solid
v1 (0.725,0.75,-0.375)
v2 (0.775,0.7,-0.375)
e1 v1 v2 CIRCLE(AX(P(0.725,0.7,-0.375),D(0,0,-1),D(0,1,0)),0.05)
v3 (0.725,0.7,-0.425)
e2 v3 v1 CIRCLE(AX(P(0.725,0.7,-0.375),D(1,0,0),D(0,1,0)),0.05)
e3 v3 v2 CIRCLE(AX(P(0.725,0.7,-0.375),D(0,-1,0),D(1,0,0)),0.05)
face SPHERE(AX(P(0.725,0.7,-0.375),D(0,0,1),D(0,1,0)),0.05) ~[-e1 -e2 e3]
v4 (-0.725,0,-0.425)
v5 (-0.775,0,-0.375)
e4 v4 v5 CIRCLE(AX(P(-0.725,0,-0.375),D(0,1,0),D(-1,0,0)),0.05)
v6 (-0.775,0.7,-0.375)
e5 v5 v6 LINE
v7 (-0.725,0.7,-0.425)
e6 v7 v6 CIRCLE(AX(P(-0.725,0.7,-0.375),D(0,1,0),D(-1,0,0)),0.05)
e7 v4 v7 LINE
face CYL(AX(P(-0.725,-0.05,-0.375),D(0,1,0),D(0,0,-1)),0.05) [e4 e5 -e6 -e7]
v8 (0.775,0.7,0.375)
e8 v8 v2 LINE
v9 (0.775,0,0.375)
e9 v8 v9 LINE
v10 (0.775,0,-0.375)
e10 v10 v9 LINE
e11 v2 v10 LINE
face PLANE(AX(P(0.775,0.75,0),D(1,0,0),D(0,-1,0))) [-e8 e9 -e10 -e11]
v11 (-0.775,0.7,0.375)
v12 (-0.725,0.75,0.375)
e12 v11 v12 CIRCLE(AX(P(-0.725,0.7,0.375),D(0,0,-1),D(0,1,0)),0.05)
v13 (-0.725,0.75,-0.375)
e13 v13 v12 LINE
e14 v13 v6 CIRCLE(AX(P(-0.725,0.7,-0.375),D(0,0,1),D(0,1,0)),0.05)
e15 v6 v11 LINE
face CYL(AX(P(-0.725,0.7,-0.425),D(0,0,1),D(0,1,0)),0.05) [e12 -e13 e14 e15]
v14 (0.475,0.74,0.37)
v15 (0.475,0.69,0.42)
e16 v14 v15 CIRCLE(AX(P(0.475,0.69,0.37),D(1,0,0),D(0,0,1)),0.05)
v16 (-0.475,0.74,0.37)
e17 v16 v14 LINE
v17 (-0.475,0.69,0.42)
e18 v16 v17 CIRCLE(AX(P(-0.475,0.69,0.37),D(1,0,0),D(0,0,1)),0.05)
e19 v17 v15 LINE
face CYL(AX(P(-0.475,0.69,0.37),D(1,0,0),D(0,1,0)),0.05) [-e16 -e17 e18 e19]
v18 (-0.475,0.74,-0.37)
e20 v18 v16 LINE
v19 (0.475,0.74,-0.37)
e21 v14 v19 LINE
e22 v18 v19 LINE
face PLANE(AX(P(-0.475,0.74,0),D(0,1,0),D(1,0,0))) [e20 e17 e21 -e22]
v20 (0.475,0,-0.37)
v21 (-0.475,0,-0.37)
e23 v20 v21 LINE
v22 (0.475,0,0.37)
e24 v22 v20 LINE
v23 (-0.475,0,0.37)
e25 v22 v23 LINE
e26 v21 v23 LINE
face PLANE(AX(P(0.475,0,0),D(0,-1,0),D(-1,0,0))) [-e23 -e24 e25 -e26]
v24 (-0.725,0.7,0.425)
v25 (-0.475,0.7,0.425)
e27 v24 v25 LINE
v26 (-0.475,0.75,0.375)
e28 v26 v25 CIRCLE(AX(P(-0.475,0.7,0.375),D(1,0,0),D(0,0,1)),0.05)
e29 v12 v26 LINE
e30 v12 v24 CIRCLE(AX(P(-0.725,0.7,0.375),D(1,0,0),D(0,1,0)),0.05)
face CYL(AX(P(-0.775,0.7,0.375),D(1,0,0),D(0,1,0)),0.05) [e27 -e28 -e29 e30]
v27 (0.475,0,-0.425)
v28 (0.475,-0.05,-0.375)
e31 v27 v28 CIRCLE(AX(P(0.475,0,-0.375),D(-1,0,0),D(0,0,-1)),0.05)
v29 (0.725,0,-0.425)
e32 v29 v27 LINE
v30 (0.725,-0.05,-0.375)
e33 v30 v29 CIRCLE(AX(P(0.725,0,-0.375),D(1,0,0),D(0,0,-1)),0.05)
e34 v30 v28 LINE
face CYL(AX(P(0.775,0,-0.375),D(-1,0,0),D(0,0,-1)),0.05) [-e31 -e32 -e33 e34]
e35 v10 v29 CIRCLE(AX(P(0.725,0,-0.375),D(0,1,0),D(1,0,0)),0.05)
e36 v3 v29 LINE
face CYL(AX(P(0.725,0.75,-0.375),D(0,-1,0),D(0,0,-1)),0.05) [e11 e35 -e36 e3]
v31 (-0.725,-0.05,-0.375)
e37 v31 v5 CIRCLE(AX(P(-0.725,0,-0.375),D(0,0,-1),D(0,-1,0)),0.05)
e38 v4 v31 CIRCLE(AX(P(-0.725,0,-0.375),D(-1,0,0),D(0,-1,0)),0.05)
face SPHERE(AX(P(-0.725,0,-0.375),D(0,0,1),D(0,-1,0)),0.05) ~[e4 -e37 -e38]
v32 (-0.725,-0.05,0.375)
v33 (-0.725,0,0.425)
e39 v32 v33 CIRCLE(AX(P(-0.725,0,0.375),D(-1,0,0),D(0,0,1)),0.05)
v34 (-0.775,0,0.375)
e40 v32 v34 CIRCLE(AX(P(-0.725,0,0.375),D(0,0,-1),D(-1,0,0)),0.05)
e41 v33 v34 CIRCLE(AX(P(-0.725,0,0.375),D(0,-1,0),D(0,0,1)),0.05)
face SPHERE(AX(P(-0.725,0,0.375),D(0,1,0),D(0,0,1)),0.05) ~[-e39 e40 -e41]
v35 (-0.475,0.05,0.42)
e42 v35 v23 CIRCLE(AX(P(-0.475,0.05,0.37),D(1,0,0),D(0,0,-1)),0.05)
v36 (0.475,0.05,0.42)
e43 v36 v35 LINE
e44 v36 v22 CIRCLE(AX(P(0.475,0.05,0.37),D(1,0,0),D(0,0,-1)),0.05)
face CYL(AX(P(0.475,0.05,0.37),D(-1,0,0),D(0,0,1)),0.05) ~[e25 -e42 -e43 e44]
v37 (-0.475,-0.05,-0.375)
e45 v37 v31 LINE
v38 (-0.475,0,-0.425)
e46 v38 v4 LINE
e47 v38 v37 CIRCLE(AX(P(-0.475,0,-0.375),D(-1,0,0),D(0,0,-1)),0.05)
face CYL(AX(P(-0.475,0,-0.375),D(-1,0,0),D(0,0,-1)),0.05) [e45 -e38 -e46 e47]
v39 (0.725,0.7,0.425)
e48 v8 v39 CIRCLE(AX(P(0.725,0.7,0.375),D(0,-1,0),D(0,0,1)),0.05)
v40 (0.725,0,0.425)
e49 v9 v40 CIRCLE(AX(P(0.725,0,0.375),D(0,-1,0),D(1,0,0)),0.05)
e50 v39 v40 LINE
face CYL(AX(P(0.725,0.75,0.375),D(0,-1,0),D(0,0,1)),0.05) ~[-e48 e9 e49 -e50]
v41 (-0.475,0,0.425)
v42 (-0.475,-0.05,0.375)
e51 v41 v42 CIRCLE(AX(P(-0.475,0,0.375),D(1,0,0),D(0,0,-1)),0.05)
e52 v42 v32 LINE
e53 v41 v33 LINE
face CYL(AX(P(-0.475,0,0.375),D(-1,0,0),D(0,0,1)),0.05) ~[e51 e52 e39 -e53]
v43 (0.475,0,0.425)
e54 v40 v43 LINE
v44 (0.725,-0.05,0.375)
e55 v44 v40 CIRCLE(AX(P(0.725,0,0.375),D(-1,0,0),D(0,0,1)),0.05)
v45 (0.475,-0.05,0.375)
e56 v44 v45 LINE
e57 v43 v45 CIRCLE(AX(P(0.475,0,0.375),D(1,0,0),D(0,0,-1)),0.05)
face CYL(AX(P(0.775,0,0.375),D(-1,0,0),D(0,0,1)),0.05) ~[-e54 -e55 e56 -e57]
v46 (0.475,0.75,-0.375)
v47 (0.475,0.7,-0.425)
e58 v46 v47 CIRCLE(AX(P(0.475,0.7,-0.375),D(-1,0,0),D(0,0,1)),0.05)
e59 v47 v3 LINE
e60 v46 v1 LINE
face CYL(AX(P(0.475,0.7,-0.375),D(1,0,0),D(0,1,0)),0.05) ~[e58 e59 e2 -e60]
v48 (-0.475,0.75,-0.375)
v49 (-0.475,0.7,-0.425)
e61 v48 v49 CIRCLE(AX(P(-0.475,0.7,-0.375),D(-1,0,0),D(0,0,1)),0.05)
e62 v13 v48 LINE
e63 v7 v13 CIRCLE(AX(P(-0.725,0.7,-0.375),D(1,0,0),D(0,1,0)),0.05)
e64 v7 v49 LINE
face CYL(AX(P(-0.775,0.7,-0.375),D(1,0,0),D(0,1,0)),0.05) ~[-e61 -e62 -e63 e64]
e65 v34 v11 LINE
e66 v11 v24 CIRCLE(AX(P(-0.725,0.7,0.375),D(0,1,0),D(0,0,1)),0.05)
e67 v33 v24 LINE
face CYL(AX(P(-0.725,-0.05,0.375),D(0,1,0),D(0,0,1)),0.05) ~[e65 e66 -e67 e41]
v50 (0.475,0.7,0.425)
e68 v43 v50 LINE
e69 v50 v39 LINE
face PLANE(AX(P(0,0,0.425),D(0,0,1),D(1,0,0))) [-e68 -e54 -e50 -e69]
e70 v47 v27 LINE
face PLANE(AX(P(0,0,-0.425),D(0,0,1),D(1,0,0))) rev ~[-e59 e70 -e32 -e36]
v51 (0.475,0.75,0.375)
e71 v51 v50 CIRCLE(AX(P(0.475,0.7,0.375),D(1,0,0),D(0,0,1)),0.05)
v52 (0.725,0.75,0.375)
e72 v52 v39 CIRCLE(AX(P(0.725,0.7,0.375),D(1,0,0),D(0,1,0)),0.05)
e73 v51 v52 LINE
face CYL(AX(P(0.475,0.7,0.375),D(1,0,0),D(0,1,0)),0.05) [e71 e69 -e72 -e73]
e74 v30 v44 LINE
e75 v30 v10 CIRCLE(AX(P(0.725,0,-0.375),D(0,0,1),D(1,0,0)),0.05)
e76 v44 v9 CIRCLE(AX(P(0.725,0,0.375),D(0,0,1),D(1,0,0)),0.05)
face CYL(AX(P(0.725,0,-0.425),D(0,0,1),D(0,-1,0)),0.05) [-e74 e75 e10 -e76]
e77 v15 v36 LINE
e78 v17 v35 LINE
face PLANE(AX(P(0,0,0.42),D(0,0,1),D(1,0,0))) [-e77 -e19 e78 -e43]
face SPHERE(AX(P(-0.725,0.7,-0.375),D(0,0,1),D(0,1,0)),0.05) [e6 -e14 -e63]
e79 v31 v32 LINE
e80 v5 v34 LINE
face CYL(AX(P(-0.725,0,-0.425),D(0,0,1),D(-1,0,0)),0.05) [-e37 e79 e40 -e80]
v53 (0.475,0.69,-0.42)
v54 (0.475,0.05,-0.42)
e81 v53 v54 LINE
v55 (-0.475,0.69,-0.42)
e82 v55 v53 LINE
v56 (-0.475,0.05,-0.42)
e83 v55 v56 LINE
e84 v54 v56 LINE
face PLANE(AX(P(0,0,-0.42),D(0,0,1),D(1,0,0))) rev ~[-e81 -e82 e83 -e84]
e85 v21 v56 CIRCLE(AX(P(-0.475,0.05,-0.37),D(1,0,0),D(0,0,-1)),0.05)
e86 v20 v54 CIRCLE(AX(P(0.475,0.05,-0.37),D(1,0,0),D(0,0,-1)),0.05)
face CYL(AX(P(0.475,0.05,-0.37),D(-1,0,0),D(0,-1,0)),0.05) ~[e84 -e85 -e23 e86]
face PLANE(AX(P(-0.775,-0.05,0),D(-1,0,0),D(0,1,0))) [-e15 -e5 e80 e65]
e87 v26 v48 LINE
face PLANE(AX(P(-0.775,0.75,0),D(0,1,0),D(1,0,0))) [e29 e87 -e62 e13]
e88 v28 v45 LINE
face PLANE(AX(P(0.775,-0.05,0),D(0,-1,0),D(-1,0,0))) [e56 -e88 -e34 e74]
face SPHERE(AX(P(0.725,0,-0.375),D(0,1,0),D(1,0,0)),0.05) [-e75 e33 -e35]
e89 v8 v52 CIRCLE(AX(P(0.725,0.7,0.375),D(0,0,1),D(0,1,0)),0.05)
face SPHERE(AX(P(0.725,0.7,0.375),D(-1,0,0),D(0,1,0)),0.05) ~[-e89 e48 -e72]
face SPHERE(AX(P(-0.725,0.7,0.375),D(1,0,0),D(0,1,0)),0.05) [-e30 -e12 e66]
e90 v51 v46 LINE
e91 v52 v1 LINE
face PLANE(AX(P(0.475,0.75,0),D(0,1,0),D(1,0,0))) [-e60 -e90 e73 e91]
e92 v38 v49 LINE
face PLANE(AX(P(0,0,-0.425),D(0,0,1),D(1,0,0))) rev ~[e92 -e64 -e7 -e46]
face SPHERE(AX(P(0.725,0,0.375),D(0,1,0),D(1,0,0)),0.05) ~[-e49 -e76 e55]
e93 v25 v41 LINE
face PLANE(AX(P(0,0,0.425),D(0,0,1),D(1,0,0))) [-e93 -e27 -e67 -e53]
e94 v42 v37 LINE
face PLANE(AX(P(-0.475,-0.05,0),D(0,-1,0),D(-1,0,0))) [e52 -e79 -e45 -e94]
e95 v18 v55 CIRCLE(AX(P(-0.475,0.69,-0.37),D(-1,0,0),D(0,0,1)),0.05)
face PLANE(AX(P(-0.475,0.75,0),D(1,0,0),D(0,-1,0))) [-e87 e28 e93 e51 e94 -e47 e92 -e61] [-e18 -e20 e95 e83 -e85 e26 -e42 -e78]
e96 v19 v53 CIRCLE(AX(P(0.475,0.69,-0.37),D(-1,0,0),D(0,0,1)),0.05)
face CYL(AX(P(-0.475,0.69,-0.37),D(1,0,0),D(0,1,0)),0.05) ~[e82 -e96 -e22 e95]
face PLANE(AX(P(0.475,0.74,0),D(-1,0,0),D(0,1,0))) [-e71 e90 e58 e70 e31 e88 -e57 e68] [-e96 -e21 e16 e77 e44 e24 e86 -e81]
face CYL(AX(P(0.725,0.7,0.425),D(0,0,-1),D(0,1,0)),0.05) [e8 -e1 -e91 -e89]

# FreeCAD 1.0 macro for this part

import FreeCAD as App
import Part
import Sketcher
from FreeCAD import Vector
Q = App.Units.Quantity


def edges_at(feature, points):
    """Names of the edges that pass closest to the given points."""
    edges = feature.Shape.Edges
    near = lambda p: min(range(len(edges)), key=lambda i: edges[i].distToShape(Part.Vertex(*p))[0])
    return sorted({f"Edge{near(p) + 1}" for p in points})

doc = App.newDocument("Part")
body = doc.addObject("PartDesign::Body", "Body")
body.AllowCompound = True

# Sketch on XY plane
sketch1 = doc.addObject("Sketcher::SketchObject", "Sketch")
body.addObject(sketch1)
sketch1.AttachmentSupport = (doc.XY_Plane, [""])
sketch1.MapMode = "FlatFace"
sketch1.addGeometry([
    Part.LineSegment(Vector(-0.47, 0.75, 0), Vector(-0.78, 0.75, 0)),  # 0
    Part.LineSegment(Vector(-0.78, 0.75, 0), Vector(-0.78, -0.05, 0)),  # 1
    Part.LineSegment(Vector(-0.78, -0.05, 0), Vector(-0.47, -0.05, 0)),  # 2
    Part.LineSegment(Vector(-0.47, -0.05, 0), Vector(-0.47, 0.75, 0)),  # 3
    Part.LineSegment(Vector(0.47, 0.75, 0), Vector(0.47, -0.05, 0)),  # 4
    Part.LineSegment(Vector(0.47, -0.05, 0), Vector(0.78, -0.05, 0)),  # 5
    Part.LineSegment(Vector(0.78, -0.05, 0), Vector(0.78, 0.75, 0)),  # 6
    Part.LineSegment(Vector(0.78, 0.75, 0), Vector(0.47, 0.75, 0)),  # 7
], False)
sketch1.addConstraint([
    Sketcher.Constraint("Coincident", 0, 2, 1, 1),
    Sketcher.Constraint("Coincident", 1, 2, 2, 1),
    Sketcher.Constraint("Coincident", 2, 2, 3, 1),
    Sketcher.Constraint("Coincident", 3, 2, 0, 1),
    Sketcher.Constraint("Coincident", 4, 2, 5, 1),
    Sketcher.Constraint("Coincident", 5, 2, 6, 1),
    Sketcher.Constraint("Coincident", 6, 2, 7, 1),
    Sketcher.Constraint("Coincident", 7, 2, 4, 1),
    Sketcher.Constraint("Horizontal", 0),
    Sketcher.Constraint("Vertical", 1),
    Sketcher.Constraint("Horizontal", 2),
    Sketcher.Constraint("Vertical", 3),
    Sketcher.Constraint("Vertical", 4),
    Sketcher.Constraint("Horizontal", 5),
    Sketcher.Constraint("Vertical", 6),
    Sketcher.Constraint("Horizontal", 7),
    Sketcher.Constraint("Symmetric", 2, 2, 4, 2, -2),
    Sketcher.Constraint("Symmetric", 0, 2, 6, 2, -2),
    Sketcher.Constraint("DistanceX", 0, 2, 0, 1, Q("0.3 mm")),
    Sketcher.Constraint("DistanceY", 1, 2, 1, 1, Q("0.8 mm")),
    Sketcher.Constraint("DistanceY", 1, 2, -1, 1, Q("0.05 mm")),
    Sketcher.Constraint("DistanceX", 1, 2, 5, 2, Q("1.55 mm")),
])
pad1 = doc.addObject("PartDesign::Pad", "Pad")
body.addObject(pad1)
pad1.Profile = sketch1
pad1.Length = 0.85
pad1.Midplane = True

# Sketch on XY plane
sketch2 = doc.addObject("Sketcher::SketchObject", "Sketch001")
body.addObject(sketch2)
sketch2.AttachmentSupport = (doc.XY_Plane, [""])
sketch2.MapMode = "FlatFace"
sketch2.addGeometry([
    Part.LineSegment(Vector(0.5, 0.7, 0), Vector(-0.5, 0.7, 0)),
    Part.LineSegment(Vector(-0.5, 0.7, 0), Vector(-0.5, 0, 0)),
    Part.LineSegment(Vector(-0.5, 0, 0), Vector(0.5, 0, 0)),
    Part.LineSegment(Vector(0.5, 0, 0), Vector(0.5, 0.7, 0)),
], False)
sketch2.addConstraint([
    Sketcher.Constraint("Coincident", 0, 2, 1, 1),
    Sketcher.Constraint("Coincident", 1, 2, 2, 1),
    Sketcher.Constraint("Coincident", 2, 2, 3, 1),
    Sketcher.Constraint("Coincident", 3, 2, 0, 1),
    Sketcher.Constraint("Horizontal", 0),
    Sketcher.Constraint("Vertical", 1),
    Sketcher.Constraint("Horizontal", 2),
    Sketcher.Constraint("Vertical", 3),
    Sketcher.Constraint("Symmetric", 1, 2, 2, 2, -1, 1),
    Sketcher.Constraint("DistanceX", 0, 2, 0, 1, Q("0.95 mm")),
    Sketcher.Constraint("DistanceY", 1, 2, 1, 1, Q("0.74 mm")),
])
pad2 = doc.addObject("PartDesign::Pad", "Pad001")
body.addObject(pad2)
pad2.Profile = sketch2
pad2.Length = 0.84
pad2.Midplane = True
doc.recompute()

fillet = doc.addObject("PartDesign::Fillet", "Fillet")
body.addObject(fillet)
fillet.Base = (pad2, edges_at(pad2, [
    (0, 0.74, 0.42),
    (0, 0.74, -0.42),
    (0, 0, 0.42),
    (0, 0, -0.42),
    (-0.625, 0.75, 0.425),
    (-0.775, 0.75, 0),
    (-0.625, 0.75, -0.425),
    (-0.775, 0.35, 0.425),
    (-0.625, -0.05, 0.425),
    (-0.775, -0.05, 0),
    (-0.625, -0.05, -0.425),
    (-0.775, 0.35, -0.425),
    (0.625, 0.75, 0.425),
    (0.775, 0.75, 0),
    (0.625, 0.75, -0.425),
    (0.775, 0.35, 0.425),
    (0.775, 0.35, -0.425),
    (0.775, -0.05, 0),
    (0.625, -0.05, 0.425),
    (0.625, -0.05, -0.425),
]))
fillet.Radius = 0.05

doc.recompute()
